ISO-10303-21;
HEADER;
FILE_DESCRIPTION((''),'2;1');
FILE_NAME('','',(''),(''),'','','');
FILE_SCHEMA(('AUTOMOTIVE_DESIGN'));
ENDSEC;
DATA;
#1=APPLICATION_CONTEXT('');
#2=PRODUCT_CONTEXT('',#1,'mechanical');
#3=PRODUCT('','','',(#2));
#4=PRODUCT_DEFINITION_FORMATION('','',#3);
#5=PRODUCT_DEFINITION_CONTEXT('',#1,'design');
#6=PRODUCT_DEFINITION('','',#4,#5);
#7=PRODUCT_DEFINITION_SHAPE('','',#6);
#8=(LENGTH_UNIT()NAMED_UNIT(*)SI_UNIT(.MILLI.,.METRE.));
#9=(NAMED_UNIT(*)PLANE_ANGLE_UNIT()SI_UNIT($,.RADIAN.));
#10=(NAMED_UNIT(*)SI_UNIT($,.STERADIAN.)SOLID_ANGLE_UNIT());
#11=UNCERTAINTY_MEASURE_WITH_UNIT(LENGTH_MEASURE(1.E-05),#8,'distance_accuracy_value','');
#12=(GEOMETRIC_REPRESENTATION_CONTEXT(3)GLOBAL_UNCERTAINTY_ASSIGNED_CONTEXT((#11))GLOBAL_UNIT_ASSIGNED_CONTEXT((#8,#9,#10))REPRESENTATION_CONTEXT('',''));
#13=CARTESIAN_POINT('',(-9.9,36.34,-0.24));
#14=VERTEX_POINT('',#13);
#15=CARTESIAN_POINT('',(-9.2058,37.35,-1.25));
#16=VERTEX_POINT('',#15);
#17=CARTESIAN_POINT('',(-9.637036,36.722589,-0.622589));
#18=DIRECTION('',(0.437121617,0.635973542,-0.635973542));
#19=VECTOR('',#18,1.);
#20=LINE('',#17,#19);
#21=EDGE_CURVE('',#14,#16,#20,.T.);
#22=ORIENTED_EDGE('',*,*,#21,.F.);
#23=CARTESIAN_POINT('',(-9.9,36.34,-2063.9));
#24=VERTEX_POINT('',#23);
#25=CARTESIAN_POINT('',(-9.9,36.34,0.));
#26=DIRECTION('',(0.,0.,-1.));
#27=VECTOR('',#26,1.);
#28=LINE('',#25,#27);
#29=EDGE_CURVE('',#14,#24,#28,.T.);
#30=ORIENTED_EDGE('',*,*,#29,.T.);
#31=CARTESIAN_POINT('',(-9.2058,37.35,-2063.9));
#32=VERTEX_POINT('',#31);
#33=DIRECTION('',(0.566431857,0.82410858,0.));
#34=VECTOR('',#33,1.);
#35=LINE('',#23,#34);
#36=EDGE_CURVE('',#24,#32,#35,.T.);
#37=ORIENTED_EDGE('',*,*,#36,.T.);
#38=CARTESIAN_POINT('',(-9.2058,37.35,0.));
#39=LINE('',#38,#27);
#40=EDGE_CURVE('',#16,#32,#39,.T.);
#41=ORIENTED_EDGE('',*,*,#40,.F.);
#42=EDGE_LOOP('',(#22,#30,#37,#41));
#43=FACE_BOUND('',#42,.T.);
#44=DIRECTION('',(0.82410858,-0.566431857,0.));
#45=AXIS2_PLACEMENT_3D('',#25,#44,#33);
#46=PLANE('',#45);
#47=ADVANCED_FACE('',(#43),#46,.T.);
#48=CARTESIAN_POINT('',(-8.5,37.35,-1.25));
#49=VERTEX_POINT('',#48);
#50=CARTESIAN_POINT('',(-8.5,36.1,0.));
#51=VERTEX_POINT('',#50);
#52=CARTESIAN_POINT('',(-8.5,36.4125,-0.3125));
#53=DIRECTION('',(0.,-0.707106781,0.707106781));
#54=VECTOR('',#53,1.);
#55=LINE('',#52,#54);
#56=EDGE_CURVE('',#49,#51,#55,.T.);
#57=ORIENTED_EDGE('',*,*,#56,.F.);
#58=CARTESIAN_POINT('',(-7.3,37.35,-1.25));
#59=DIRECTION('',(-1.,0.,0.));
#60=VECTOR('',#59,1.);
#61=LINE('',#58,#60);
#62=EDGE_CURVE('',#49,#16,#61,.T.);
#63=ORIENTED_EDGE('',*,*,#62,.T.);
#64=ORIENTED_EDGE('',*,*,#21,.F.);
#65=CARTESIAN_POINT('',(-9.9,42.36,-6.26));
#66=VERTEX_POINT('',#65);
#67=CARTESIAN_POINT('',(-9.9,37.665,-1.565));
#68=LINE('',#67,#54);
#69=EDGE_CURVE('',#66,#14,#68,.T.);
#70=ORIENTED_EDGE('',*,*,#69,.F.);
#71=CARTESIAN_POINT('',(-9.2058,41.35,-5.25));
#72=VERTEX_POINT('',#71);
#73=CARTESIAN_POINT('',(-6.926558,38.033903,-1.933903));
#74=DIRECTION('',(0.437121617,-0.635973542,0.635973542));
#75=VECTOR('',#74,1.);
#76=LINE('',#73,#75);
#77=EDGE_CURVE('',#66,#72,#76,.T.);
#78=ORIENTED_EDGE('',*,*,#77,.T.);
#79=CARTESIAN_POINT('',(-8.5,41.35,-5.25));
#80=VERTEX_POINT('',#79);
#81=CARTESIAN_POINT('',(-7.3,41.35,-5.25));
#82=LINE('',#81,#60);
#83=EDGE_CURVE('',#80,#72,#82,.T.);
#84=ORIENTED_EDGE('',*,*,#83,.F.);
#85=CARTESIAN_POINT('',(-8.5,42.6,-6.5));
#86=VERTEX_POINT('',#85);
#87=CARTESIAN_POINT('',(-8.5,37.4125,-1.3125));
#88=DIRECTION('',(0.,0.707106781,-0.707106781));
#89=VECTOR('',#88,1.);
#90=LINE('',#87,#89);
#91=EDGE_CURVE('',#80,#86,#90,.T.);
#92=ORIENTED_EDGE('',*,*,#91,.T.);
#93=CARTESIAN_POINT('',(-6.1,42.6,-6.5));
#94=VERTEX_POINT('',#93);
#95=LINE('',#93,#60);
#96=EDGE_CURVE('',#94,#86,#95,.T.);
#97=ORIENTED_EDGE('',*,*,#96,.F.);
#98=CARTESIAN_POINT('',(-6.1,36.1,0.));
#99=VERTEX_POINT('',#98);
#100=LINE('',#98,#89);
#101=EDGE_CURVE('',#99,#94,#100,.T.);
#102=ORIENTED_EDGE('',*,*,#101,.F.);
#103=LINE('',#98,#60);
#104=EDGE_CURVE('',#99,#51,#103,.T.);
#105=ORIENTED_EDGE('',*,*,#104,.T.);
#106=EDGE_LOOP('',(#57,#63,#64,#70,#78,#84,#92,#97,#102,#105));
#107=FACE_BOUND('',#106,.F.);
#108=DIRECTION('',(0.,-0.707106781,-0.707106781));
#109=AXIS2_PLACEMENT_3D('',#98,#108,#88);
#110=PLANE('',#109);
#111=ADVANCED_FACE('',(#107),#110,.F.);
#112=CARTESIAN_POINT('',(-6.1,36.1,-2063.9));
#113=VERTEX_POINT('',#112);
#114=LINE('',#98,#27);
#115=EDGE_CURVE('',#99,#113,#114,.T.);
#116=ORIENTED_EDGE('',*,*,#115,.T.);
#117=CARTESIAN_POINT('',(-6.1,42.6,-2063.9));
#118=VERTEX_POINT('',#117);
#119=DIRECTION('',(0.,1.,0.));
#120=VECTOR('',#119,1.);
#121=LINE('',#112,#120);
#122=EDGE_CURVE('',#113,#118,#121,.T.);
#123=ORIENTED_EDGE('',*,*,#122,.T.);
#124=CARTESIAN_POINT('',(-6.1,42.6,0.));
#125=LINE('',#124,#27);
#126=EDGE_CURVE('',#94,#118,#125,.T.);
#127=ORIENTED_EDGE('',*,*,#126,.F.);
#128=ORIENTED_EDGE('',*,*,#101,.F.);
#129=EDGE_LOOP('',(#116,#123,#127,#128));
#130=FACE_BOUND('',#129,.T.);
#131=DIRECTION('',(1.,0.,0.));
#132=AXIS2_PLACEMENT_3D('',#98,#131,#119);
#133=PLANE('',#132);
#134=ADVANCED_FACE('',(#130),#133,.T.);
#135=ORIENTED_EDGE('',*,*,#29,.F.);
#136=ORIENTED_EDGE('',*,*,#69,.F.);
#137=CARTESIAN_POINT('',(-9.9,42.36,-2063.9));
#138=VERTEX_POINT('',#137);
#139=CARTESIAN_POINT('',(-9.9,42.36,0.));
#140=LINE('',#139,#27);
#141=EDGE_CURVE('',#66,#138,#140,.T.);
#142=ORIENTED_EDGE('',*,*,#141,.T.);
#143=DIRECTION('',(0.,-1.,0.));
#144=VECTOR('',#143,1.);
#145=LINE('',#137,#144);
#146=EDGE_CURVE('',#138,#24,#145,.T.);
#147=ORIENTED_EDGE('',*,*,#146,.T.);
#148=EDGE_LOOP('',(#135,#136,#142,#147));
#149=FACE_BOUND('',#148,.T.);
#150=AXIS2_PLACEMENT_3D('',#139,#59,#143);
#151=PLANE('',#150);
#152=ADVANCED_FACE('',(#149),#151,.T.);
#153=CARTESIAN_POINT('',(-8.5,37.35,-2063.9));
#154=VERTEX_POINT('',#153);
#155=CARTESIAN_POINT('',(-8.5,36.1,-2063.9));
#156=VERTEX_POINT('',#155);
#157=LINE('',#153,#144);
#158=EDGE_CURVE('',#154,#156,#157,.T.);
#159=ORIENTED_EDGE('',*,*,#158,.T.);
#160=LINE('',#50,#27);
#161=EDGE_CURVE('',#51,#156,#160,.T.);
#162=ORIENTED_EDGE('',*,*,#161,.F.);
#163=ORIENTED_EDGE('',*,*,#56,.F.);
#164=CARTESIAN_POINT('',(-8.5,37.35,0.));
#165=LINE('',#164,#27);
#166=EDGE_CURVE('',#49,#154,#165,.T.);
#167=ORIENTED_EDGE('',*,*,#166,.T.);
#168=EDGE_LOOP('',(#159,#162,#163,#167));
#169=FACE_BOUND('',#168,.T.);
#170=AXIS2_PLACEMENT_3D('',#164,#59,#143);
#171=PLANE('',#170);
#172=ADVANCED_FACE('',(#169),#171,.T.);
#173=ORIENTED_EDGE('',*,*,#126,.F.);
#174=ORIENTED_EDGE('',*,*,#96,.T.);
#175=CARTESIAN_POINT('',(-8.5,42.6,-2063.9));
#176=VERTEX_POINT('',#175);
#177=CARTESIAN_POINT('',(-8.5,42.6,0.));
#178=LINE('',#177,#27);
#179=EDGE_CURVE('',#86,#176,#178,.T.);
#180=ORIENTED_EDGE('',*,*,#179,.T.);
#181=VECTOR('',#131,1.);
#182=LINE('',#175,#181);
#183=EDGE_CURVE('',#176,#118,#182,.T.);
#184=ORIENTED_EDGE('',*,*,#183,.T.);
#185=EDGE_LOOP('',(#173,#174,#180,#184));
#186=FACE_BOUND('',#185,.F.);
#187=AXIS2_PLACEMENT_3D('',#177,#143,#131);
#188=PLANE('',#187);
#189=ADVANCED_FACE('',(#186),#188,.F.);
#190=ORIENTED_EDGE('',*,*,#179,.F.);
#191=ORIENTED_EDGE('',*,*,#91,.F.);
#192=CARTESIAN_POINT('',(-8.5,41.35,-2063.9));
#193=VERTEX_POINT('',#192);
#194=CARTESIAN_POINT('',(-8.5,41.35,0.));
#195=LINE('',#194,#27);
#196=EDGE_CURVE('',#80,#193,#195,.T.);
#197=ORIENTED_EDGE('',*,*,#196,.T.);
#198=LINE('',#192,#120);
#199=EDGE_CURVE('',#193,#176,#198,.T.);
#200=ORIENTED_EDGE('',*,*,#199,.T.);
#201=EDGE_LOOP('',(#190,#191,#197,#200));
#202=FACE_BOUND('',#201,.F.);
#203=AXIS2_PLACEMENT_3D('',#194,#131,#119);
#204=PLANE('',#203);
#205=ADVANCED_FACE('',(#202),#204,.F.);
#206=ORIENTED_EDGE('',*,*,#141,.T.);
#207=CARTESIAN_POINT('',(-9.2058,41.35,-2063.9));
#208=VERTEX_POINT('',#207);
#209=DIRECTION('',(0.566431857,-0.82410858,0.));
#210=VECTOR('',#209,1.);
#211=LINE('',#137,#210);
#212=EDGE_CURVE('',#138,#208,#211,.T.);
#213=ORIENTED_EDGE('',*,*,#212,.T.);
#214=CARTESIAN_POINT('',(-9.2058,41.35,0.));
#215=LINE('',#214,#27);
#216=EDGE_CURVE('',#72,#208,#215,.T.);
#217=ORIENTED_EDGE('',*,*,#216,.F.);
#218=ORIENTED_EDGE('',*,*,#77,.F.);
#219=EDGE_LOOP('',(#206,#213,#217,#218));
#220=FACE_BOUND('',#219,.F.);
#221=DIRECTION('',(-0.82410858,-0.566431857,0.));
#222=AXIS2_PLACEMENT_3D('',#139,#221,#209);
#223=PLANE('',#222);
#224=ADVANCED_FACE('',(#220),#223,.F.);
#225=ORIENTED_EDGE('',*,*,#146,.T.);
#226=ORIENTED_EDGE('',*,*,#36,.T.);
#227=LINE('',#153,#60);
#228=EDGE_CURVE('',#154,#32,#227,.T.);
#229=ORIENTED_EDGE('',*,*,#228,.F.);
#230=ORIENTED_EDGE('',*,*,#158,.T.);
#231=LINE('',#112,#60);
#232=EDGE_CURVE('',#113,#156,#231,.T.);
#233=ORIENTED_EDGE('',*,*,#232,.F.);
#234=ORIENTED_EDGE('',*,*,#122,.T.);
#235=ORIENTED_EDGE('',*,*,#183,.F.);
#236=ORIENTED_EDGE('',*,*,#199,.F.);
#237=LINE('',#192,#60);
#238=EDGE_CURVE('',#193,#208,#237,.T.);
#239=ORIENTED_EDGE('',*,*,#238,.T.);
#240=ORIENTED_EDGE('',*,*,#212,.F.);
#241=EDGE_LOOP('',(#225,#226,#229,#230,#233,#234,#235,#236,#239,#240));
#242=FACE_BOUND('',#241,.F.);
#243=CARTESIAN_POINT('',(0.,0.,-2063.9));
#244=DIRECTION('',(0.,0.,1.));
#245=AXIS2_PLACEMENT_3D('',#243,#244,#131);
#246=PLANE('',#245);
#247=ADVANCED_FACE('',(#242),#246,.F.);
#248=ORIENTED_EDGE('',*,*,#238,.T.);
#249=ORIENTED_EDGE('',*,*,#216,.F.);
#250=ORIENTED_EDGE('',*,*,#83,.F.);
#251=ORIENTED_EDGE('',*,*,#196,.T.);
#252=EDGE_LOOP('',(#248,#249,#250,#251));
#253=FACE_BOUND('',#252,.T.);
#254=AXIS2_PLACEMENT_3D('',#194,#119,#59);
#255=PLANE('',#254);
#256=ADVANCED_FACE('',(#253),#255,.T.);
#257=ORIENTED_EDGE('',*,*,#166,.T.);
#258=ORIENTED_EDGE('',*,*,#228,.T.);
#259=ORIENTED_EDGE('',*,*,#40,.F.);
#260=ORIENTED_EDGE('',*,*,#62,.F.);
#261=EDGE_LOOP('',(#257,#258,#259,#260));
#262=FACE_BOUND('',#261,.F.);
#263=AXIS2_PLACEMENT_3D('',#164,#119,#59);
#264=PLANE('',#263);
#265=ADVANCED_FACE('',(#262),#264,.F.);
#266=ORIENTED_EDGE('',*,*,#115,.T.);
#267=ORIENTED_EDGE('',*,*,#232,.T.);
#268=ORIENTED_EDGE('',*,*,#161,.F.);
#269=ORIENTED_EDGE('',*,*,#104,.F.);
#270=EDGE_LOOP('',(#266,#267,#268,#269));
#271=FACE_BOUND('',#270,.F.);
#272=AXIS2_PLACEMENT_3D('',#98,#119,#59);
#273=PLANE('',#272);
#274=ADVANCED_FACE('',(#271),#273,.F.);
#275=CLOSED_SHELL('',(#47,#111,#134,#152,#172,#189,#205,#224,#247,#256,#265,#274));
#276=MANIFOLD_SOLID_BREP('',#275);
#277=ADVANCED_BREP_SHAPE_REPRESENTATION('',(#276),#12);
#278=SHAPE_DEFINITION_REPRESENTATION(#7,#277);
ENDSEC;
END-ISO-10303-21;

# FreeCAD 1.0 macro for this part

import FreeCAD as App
import Part
import Sketcher
from FreeCAD import Vector


def add_polygon(sketch, points):
    """Adds a closed chain of lines whose ends are joined by coincident constraints."""
    first, n = sketch.GeometryCount, len(points)
    for a, b in zip(points, points[1:] + points[:1]):
        sketch.addGeometry(Part.LineSegment(App.Vector(*a, 0), App.Vector(*b, 0)), False)
    for i in range(n):
        sketch.addConstraint(Sketcher.Constraint("Coincident", first + i, 2, first + (i + 1) % n, 1))

doc = App.newDocument("Part")
params = doc.addObject("Spreadsheet::Sheet", "Params")
for row, (alias, value) in enumerate([
    ("sketch1_width", "2.4 mm"),
    ("sketch1_height", "6.5 mm"),
    ("sketch1_height2", "6.02 mm"),
    ("pad1_length", "2063.9 mm"),
    ("sketch2_width", "6.5 mm"),
], start=1):
    params.set(f"A{row}", alias)
    params.set(f"B{row}", "=" + value)
    params.setAlias(f"B{row}", alias)

body = doc.addObject("PartDesign::Body", "Body")

sketch1 = doc.addObject("Sketcher::SketchObject", "Sketch")
body.addObject(sketch1)
sketch1.AttachmentSupport = (doc.XY_Plane, [""])
sketch1.MapMode = "FlatFace"
add_polygon(sketch1, [(-6.1, 42.6), (-8.5, 42.6), (-8.5, 41.35), (-9.2058, 41.35), (-9.9, 42.36), (-9.9, 36.34), (-9.2058, 37.35), (-8.5, 37.35), (-8.5, 36.1), (-6.1, 36.1)])
sketch1.addConstraint(Sketcher.Constraint("Horizontal", 0))
sketch1.addConstraint(Sketcher.Constraint("Vertical", 1))
sketch1.addConstraint(Sketcher.Constraint("Horizontal", 2))
sketch1.addConstraint(Sketcher.Constraint("Vertical", 4))
sketch1.addConstraint(Sketcher.Constraint("Horizontal", 6))
sketch1.addConstraint(Sketcher.Constraint("Vertical", 7))
sketch1.addConstraint(Sketcher.Constraint("Horizontal", 8))
sketch1.addConstraint(Sketcher.Constraint("Vertical", 9))
sketch1.addConstraint(Sketcher.Constraint("Vertical", 2, 2, 5, 2))
sketch1.addConstraint(Sketcher.Constraint("Vertical", 1, 2, 6, 2))
sketch1.addConstraint(Sketcher.Constraint("Equal", 1, 7))
sketch1.addConstraint(Sketcher.Constraint("Equal", 3, 5))
sketch1.addConstraint(Sketcher.Constraint("DistanceX", 0, 2, 0, 1, 2.4))
sketch1.addConstraint(Sketcher.Constraint("DistanceY", 9, 1, 9, 2, 6.5))
sketch1.addConstraint(Sketcher.Constraint("DistanceY", 5, 2, 2, 2, 4.0))
sketch1.addConstraint(Sketcher.Constraint("DistanceY", 4, 2, 4, 1, 6.02))
sketch1.addConstraint(Sketcher.Constraint("DistanceX", 2, 2, 2, 1, 0.7058))
sketch1.addConstraint(Sketcher.Constraint("DistanceX", 0, 2, -1, 1, 8.5))
sketch1.addConstraint(Sketcher.Constraint("DistanceY", -1, 1, 0, 2, 42.6))
sketch1.addConstraint(Sketcher.Constraint("DistanceX", 3, 2, -1, 1, 9.9))
sketch1.setExpression("Constraints[22]", "Params.sketch1_width")
sketch1.setExpression("Constraints[23]", "Params.sketch1_height")
sketch1.setExpression("Constraints[25]", "Params.sketch1_height2")
pad1 = doc.addObject("PartDesign::Pad", "Pad")
body.addObject(pad1)
pad1.Profile = sketch1
pad1.setExpression("Length", "Params.pad1_length")
pad1.Reversed = True

sketch2 = doc.addObject("Sketcher::SketchObject", "Sketch001")
body.addObject(sketch2)
sketch2.AttachmentSupport = (doc.YZ_Plane, [""])
sketch2.MapMode = "FlatFace"
sketch2.AttachmentOffset = App.Placement(Vector(0, 0, -6.1), App.Rotation())
add_polygon(sketch2, [(42.6, 0), (36.1, 0), (42.6, -6.5)])
sketch2.addConstraint(Sketcher.Constraint("Horizontal", 0))
sketch2.addConstraint(Sketcher.Constraint("Vertical", 2))
sketch2.addConstraint(Sketcher.Constraint("PointOnObject", 0, 2, -1))
sketch2.addConstraint(Sketcher.Constraint("Equal", 0, 2))
sketch2.addConstraint(Sketcher.Constraint("DistanceX", 0, 2, 0, 1, 6.5))
sketch2.addConstraint(Sketcher.Constraint("DistanceX", -1, 1, 0, 2, 36.1))
sketch2.setExpression("Constraints[7]", "Params.sketch2_width")
pocket1 = doc.addObject("PartDesign::Pocket", "Pocket")
body.addObject(pocket1)
pocket1.Profile = sketch2
pocket1.Type = "ThroughAll"

doc.recompute()
